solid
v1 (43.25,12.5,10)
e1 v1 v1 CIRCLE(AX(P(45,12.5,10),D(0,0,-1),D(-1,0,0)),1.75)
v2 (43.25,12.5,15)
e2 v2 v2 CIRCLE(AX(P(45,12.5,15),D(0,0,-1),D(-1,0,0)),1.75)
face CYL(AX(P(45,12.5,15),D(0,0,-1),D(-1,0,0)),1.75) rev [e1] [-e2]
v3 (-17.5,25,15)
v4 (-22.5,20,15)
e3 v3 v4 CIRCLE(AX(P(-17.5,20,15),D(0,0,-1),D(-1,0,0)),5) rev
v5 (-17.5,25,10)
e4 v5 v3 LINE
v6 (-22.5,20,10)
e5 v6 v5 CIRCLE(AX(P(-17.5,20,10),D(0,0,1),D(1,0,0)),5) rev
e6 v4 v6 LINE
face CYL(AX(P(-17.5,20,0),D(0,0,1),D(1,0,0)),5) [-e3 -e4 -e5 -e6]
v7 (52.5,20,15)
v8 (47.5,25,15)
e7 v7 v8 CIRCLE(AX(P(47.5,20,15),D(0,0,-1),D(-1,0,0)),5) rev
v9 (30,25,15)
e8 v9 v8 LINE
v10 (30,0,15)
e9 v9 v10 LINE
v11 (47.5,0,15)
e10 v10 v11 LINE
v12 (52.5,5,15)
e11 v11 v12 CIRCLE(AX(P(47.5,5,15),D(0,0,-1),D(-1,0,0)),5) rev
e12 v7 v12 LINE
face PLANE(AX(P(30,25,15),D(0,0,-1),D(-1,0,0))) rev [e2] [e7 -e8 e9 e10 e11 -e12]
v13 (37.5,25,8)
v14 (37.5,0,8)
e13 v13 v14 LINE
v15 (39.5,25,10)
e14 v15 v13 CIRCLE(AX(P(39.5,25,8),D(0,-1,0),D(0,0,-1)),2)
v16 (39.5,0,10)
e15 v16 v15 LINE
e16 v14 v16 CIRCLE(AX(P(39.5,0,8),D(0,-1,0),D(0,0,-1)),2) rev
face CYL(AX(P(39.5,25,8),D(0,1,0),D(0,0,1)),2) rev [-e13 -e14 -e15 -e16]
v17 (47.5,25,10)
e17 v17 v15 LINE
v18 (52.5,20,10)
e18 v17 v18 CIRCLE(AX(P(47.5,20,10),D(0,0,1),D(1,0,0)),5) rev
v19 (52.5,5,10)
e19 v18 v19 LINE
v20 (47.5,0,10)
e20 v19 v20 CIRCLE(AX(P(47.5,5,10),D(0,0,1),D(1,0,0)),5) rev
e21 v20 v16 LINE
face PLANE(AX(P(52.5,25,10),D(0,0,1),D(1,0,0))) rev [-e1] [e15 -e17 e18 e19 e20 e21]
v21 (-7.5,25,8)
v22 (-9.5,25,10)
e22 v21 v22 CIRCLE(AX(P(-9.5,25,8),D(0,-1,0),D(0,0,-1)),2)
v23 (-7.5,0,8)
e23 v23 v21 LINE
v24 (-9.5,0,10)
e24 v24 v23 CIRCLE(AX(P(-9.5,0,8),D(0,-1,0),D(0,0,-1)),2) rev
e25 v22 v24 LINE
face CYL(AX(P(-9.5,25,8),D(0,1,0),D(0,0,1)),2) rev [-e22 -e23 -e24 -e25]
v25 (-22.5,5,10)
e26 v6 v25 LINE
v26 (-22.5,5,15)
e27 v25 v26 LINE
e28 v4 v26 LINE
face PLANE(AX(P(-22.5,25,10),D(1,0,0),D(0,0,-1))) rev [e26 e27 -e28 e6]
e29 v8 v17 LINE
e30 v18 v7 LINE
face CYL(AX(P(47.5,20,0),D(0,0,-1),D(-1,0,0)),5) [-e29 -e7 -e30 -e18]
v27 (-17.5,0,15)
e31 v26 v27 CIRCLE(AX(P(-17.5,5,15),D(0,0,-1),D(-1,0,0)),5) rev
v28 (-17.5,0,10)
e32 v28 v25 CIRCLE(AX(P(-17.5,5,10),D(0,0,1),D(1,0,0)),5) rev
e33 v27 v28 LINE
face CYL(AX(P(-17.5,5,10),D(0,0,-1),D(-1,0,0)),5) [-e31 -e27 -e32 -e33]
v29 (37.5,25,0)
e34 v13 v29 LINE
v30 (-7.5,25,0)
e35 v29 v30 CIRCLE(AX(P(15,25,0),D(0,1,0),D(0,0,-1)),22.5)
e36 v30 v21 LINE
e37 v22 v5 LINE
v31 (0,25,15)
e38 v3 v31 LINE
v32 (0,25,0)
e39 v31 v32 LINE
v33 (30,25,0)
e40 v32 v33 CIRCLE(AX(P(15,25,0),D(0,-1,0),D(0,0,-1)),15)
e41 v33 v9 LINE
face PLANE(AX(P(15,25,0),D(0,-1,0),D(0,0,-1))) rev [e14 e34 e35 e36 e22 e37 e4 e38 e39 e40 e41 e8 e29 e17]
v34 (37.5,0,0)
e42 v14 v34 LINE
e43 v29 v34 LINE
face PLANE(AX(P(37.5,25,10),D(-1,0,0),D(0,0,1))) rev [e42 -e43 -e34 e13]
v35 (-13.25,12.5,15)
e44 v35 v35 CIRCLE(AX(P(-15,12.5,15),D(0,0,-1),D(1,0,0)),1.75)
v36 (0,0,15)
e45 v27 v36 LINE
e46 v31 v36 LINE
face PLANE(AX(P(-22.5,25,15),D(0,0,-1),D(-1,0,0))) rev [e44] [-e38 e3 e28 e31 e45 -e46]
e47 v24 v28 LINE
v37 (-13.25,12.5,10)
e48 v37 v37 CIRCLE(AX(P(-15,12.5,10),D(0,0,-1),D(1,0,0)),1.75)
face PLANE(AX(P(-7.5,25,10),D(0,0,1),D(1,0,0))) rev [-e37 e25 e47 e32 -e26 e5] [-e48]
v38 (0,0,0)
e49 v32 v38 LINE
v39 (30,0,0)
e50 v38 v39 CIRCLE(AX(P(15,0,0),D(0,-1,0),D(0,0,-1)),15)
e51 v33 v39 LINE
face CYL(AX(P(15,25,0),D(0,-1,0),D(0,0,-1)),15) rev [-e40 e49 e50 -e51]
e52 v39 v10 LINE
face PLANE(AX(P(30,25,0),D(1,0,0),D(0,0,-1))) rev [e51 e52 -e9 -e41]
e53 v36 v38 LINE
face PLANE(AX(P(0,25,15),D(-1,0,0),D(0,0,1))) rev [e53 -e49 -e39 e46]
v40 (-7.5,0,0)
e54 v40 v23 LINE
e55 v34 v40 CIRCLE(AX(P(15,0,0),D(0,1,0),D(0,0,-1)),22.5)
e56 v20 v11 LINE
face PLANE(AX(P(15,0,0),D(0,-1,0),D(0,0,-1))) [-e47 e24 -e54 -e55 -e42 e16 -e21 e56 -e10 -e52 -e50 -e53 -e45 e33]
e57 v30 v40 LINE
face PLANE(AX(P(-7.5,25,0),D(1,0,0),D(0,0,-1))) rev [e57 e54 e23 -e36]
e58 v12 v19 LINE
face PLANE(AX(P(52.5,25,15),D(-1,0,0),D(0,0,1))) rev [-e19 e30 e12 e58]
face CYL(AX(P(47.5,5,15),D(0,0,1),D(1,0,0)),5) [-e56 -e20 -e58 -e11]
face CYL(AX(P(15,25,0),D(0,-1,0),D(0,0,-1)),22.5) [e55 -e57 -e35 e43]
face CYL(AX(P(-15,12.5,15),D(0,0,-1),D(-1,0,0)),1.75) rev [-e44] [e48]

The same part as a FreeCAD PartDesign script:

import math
import FreeCAD as App
import Part
import Sketcher

V = App.Vector


def edges_at(feature, points):
    """Names of the edges that pass closest to the given points."""
    edges = feature.Shape.Edges
    near = lambda p: min(range(len(edges)), key=lambda i: edges[i].distToShape(Part.Vertex(*p))[0])
    return sorted({f"Edge{near(p) + 1}" for p in points})

doc = App.newDocument("Part")
params = doc.addObject("Spreadsheet::Sheet", "Params")
for row, (alias, value) in enumerate([
    ("sketch1_radius", "15 mm"),
    ("sketch1_radius2", "22.5 mm"),
    ("sketch1_width", "15 mm"),
    ("sketch1_height", "10 mm"),
    ("pad1_length", "25 mm"),
    ("sketch2_diameter", "3.5 mm"),
    ("fillet_radius", "5 mm"),
    ("fillet2_radius", "2 mm"),
], start=1):
    params.set(f"A{row}", alias)
    params.set(f"B{row}", "=" + value)
    params.setAlias(f"B{row}", alias)

body = doc.addObject("PartDesign::Body", "Body")

# Sketch on XZ plane
sketch1 = doc.addObject("Sketcher::SketchObject", "Sketch")
body.addObject(sketch1)
sketch1.AttachmentSupport = (doc.XZ_Plane, [""])
sketch1.MapMode = "FlatFace"
sketch1.addGeometry([
    Part.LineSegment(V(-8, 0, 0), V(-8, 10, 0)),  # 0
    Part.LineSegment(V(-8, 10, 0), V(-22, 10, 0)),  # 1
    Part.LineSegment(V(-22, 10, 0), V(-22, 15, 0)),  # 2
    Part.LineSegment(V(-22, 15, 0), V(0, 15, 0)),  # 3
    Part.LineSegment(V(0, 15, 0), V(0, 0, 0)),  # 4
    Part.ArcOfCircle(Part.Circle(V(15, 0, 0), V(0, 0, 1), 15), math.radians(180), math.radians(360)),  # 5
    Part.LineSegment(V(30, 0, 0), V(30, 15, 0)),  # 6
    Part.LineSegment(V(30, 15, 0), V(52, 15, 0)),  # 7
    Part.LineSegment(V(52, 15, 0), V(52, 10, 0)),  # 8
    Part.LineSegment(V(52, 10, 0), V(38, 10, 0)),  # 9
    Part.LineSegment(V(38, 10, 0), V(38, 0, 0)),  # 10
    Part.ArcOfCircle(Part.Circle(V(15, 0, 0), V(0, 0, 1), 22), math.radians(180), math.radians(360)),  # 11
], False)
sketch1.addConstraint([
    Sketcher.Constraint("Coincident", 0, 2, 1, 1),
    Sketcher.Constraint("Coincident", 1, 2, 2, 1),
    Sketcher.Constraint("Coincident", 2, 2, 3, 1),
    Sketcher.Constraint("Coincident", 3, 2, 4, 1),
    Sketcher.Constraint("Tangent", 4, 2, 5, 1),
    Sketcher.Constraint("Tangent", 5, 2, 6, 1),
    Sketcher.Constraint("Coincident", 6, 2, 7, 1),
    Sketcher.Constraint("Coincident", 7, 2, 8, 1),
    Sketcher.Constraint("Coincident", 8, 2, 9, 1),
    Sketcher.Constraint("Coincident", 9, 2, 10, 1),
    Sketcher.Constraint("Tangent", 10, 2, 11, 2),
    Sketcher.Constraint("Tangent", 11, 1, 0, 1),
    Sketcher.Constraint("Vertical", 0),
    Sketcher.Constraint("Horizontal", 1),
    Sketcher.Constraint("Vertical", 2),
    Sketcher.Constraint("Horizontal", 3),
    Sketcher.Constraint("Vertical", 4),
    Sketcher.Constraint("Vertical", 6),
    Sketcher.Constraint("Horizontal", 7),
    Sketcher.Constraint("Vertical", 8),
    Sketcher.Constraint("Horizontal", 9),
    Sketcher.Constraint("Vertical", 10),
    Sketcher.Constraint("Coincident", 4, 2, -1, 1),
    Sketcher.Constraint("Coincident", 11, 3, 5, 3),
    Sketcher.Constraint("Horizontal", 3, 2, 6, 2),
    Sketcher.Constraint("Horizontal", 1, 2, 8, 2),
    Sketcher.Constraint("Equal", 3, 7),
    Sketcher.Constraint("Equal", 9, 4),
    Sketcher.Constraint("Radius", 5, 15.0),
    Sketcher.Constraint("Radius", 11, 22.5),
    Sketcher.Constraint("DistanceX", 1, 2, 1, 1, 15.0),
    Sketcher.Constraint("DistanceY", 0, 1, 0, 2, 10.0),
])
sketch1.setExpression("Constraints[28]", "Params.sketch1_radius")
sketch1.setExpression("Constraints[29]", "Params.sketch1_radius2")
sketch1.setExpression("Constraints[30]", "Params.sketch1_width")
sketch1.setExpression("Constraints[31]", "Params.sketch1_height")
pad1 = doc.addObject("PartDesign::Pad", "Pad")
body.addObject(pad1)
pad1.Profile = sketch1
pad1.setExpression("Length", "Params.pad1_length")
pad1.Reversed = True

# Sketch on XY plane
sketch2 = doc.addObject("Sketcher::SketchObject", "Sketch001")
body.addObject(sketch2)
sketch2.AttachmentSupport = (doc.XY_Plane, [""])
sketch2.MapMode = "FlatFace"
sketch2.AttachmentOffset = App.Placement(V(0, 0, 10), App.Rotation())
sketch2.addGeometry([
    Part.Circle(V(45, 12.5, 0), V(0, 0, 1), 1.8),
    Part.Circle(V(-15, 12.5, 0), V(0, 0, 1), 1.8),
], False)
sketch2.addConstraint([
    Sketcher.Constraint("Equal", 0, 1),
    Sketcher.Constraint("Horizontal", 0, 3, 1, 3),
    Sketcher.Constraint("Diameter", 0, 3.5),
    Sketcher.Constraint("DistanceX", -1, 1, 0, 3, 45.0),
    Sketcher.Constraint("DistanceX", 1, 3, -1, 1, 15.0),
    Sketcher.Constraint("DistanceY", -1, 1, 0, 3, 12.5),
])
sketch2.setExpression("Constraints[2]", "Params.sketch2_diameter")
pocket1 = doc.addObject("PartDesign::Pocket", "Pocket")
body.addObject(pocket1)
pocket1.Profile = sketch2
pocket1.Type = "ThroughAll"
pocket1.Reversed = True
doc.recompute()

fillet = doc.addObject("PartDesign::Fillet", "Fillet")
body.addObject(fillet)
fillet.Base = (pocket1, edges_at(pocket1, [
    (-22.5, 0, 12.5),
    (52.5, 0, 12.5),
    (52.5, 25, 12.5),
    (-22.5, 25, 12.5),
]))
fillet.setExpression("Radius", "Params.fillet_radius")
doc.recompute()

fillet2 = doc.addObject("PartDesign::Fillet", "Fillet001")
body.addObject(fillet2)
fillet2.Base = (fillet, edges_at(fillet, [(-7.5, 12.5, 10), (37.5, 12.5, 10)]))
fillet2.setExpression("Radius", "Params.fillet2_radius")

doc.recompute()
